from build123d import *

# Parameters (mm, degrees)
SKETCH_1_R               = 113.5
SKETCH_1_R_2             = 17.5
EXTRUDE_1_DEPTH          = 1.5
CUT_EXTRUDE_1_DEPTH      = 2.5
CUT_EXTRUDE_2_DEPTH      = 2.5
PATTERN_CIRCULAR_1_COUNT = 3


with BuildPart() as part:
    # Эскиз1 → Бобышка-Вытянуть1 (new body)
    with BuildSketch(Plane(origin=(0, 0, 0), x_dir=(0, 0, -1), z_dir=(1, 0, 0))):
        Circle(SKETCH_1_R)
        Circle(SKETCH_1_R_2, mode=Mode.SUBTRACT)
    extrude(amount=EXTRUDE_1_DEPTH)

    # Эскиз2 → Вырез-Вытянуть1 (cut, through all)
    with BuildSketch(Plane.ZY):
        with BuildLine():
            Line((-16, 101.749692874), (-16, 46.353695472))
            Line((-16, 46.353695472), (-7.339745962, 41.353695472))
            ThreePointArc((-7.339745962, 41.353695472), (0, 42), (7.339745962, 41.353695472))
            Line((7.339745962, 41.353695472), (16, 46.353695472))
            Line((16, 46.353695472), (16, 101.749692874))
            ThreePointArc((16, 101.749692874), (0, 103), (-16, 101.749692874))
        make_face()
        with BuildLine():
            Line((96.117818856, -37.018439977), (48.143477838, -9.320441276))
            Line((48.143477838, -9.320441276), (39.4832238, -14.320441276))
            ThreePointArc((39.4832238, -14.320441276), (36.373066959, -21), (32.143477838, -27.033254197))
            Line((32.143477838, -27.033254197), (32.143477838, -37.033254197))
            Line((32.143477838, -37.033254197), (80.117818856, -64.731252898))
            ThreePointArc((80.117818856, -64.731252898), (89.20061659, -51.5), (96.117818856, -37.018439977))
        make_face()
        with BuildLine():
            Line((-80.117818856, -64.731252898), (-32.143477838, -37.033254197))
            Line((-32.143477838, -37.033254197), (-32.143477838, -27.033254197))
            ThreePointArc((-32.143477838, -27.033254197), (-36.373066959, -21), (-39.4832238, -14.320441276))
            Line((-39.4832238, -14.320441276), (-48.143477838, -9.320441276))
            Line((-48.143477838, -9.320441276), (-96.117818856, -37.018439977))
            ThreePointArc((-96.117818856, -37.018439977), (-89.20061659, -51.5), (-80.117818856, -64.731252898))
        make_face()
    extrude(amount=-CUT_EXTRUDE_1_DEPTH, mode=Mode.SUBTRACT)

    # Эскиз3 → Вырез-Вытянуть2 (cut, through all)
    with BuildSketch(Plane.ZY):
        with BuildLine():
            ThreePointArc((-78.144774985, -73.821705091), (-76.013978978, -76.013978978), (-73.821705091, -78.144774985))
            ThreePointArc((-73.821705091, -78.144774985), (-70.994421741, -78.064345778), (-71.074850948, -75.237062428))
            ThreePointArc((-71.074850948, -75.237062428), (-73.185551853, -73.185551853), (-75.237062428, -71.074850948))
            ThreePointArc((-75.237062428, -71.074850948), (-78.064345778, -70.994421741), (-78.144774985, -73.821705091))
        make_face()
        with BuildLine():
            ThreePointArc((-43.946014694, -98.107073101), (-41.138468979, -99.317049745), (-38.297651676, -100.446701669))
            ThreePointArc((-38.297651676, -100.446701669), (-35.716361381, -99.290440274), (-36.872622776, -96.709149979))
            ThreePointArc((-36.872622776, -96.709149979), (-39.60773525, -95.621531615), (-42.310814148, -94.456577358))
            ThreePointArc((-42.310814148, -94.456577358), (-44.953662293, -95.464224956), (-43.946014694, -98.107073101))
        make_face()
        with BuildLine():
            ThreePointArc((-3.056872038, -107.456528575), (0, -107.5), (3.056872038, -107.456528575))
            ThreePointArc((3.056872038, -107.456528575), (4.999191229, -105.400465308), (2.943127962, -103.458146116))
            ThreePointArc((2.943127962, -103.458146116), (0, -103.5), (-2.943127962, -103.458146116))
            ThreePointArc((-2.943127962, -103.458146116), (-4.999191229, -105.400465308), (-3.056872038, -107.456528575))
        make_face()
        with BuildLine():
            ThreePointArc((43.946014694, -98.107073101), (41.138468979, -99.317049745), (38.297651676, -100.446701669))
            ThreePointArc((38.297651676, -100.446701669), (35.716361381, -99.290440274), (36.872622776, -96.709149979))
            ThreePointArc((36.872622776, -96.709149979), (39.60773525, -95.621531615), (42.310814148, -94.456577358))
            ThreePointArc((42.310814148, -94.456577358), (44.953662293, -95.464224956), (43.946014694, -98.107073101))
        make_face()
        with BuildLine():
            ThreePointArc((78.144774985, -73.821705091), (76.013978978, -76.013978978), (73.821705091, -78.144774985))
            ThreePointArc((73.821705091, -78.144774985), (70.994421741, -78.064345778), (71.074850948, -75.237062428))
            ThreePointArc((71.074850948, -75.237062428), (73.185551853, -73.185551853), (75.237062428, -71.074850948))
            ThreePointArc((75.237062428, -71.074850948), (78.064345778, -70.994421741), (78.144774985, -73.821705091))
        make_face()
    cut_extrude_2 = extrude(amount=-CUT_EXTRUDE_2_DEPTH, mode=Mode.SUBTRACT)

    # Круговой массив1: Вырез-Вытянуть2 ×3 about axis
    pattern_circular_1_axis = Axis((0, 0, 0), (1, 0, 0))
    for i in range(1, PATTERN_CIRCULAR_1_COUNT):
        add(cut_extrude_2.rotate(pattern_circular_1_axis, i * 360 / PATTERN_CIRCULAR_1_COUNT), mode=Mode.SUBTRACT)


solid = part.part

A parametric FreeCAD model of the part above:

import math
import FreeCAD as App
import Part
import Sketcher
Q = App.Units.Quantity

doc = App.newDocument("Part")
body = doc.addObject("PartDesign::Body", "Body")

# Sketch on YZ plane
sketch1 = body.newObject("Sketcher::SketchObject", "Sketch")
sketch1.AttachmentSupport = (doc.getObject("YZ_Plane"), [""])
sketch1.MapMode = "FlatFace"
sketch1.addGeometry([
    Part.Circle(App.Vector(0, 0, 0), App.Vector(0, 0, 1), 114),
    Part.Circle(App.Vector(0, 0, 0), App.Vector(0, 0, 1), 18),
], False)
sketch1.addConstraint([
    Sketcher.Constraint("Coincident", 0, 3, -1, 1),
    Sketcher.Constraint("Coincident", 1, 3, -1, 1),
    Sketcher.Constraint("Diameter", 0, 227.0),
    Sketcher.Constraint("Diameter", 1, 35.0),
])
pad1 = body.newObject("PartDesign::Pad", "Pad")
pad1.Profile = sketch1
pad1.Length = 1.5

# Sketch on YZ plane
sketch2 = body.newObject("Sketcher::SketchObject", "Sketch001")
sketch2.AttachmentSupport = (doc.getObject("YZ_Plane"), [""])
sketch2.MapMode = "FlatFace"
sketch2.addGeometry([
    Part.LineSegment(App.Vector(102, -16, 0), App.Vector(46, -16, 0)),  # 0
    Part.LineSegment(App.Vector(46, -16, 0), App.Vector(41, -7, 0)),  # 1
    Part.ArcOfCircle(Part.Circle(App.Vector(0, 0, 0), App.Vector(0, 0, 1), 42), math.radians(-10), math.radians(10)),  # 2
    Part.LineSegment(App.Vector(41, 7, 0), App.Vector(46, 16, 0)),  # 3
    Part.LineSegment(App.Vector(46, 16, 0), App.Vector(102, 16, 0)),  # 4
    Part.ArcOfCircle(Part.Circle(App.Vector(0, 0, 0), App.Vector(0, 0, 1), 103), math.radians(-8.94), math.radians(8.94)),  # 5
    Part.LineSegment(App.Vector(-37, 96, 0), App.Vector(-9, 48, 0)),  # 6
    Part.LineSegment(App.Vector(-9, 48, 0), App.Vector(-14, 39, 0)),  # 7
    Part.ArcOfCircle(Part.Circle(App.Vector(0, 0, 0), App.Vector(0, 0, 1), 42), math.radians(110), math.radians(130)),  # 8
    Part.LineSegment(App.Vector(-27, 32, 0), App.Vector(-37, 32, 0)),  # 9
    Part.LineSegment(App.Vector(-37, 32, 0), App.Vector(-65, 80, 0)),  # 10
    Part.ArcOfCircle(Part.Circle(App.Vector(0, 0, 0), App.Vector(0, 0, 1), 103), math.radians(111.06), math.radians(128.94)),  # 11
    Part.LineSegment(App.Vector(-65, -80, 0), App.Vector(-37, -32, 0)),  # 12
    Part.LineSegment(App.Vector(-37, -32, 0), App.Vector(-27, -32, 0)),  # 13
    Part.ArcOfCircle(Part.Circle(App.Vector(0, 0, 0), App.Vector(0, 0, 1), 42), math.radians(-130), math.radians(-110)),  # 14
    Part.LineSegment(App.Vector(-14, -39, 0), App.Vector(-9, -48, 0)),  # 15
    Part.LineSegment(App.Vector(-9, -48, 0), App.Vector(-37, -96, 0)),  # 16
    Part.ArcOfCircle(Part.Circle(App.Vector(0, 0, 0), App.Vector(0, 0, 1), 103), math.radians(-128.94), math.radians(-111.06)),  # 17
], False)
sketch2.addConstraint([
    Sketcher.Constraint("Coincident", 0, 2, 1, 1),
    Sketcher.Constraint("Coincident", 1, 2, 2, 1),
    Sketcher.Constraint("Coincident", 2, 2, 3, 1),
    Sketcher.Constraint("Coincident", 3, 2, 4, 1),
    Sketcher.Constraint("Coincident", 4, 2, 5, 2),
    Sketcher.Constraint("Coincident", 5, 1, 0, 1),
    Sketcher.Constraint("Coincident", 6, 2, 7, 1),
    Sketcher.Constraint("Coincident", 7, 2, 8, 1),
    Sketcher.Constraint("Coincident", 8, 2, 9, 1),
    Sketcher.Constraint("Coincident", 9, 2, 10, 1),
    Sketcher.Constraint("Coincident", 10, 2, 11, 2),
    Sketcher.Constraint("Coincident", 11, 1, 6, 1),
    Sketcher.Constraint("Coincident", 12, 2, 13, 1),
    Sketcher.Constraint("Coincident", 13, 2, 14, 1),
    Sketcher.Constraint("Coincident", 14, 2, 15, 1),
    Sketcher.Constraint("Coincident", 15, 2, 16, 1),
    Sketcher.Constraint("Coincident", 16, 2, 17, 2),
    Sketcher.Constraint("Coincident", 17, 1, 12, 1),
    Sketcher.Constraint("Horizontal", 0),
    Sketcher.Constraint("Horizontal", 4),
    Sketcher.Constraint("Horizontal", 9),
    Sketcher.Constraint("Horizontal", 13),
    Sketcher.Constraint("Coincident", 2, 3, -1, 1),
    Sketcher.Constraint("Coincident", 5, 3, -1, 1),
    Sketcher.Constraint("Coincident", 8, 3, -1, 1),
    Sketcher.Constraint("Coincident", 11, 3, -1, 1),
    Sketcher.Constraint("Coincident", 14, 3, -1, 1),
    Sketcher.Constraint("Coincident", 17, 3, -1, 1),
    Sketcher.Constraint("Equal", 2, 8),
    Sketcher.Constraint("Equal", 5, 11),
    Sketcher.Constraint("Equal", 8, 14),
    Sketcher.Constraint("Equal", 11, 17),
    Sketcher.Constraint("Symmetric", 0, 2, 3, 2, -1),
    Sketcher.Constraint("Symmetric", 9, 2, 12, 2, -1),
    Sketcher.Constraint("Symmetric", 6, 2, 15, 2, -1),
    Sketcher.Constraint("Parallel", 1, 6),
    Sketcher.Constraint("Parallel", 3, 7),
    Sketcher.Constraint("Parallel", 6, 10),
    Sketcher.Constraint("Parallel", 7, 12),
    Sketcher.Constraint("Parallel", 10, 15),
    Sketcher.Constraint("Parallel", 12, 16),
    Sketcher.Constraint("Vertical", 1, 2, 2, 2),
    Sketcher.Constraint("Equal", 3, 7),
    Sketcher.Constraint("Equal", 6, 10),
    Sketcher.Constraint("Radius", 2, 42.0),
    Sketcher.Constraint("Radius", 5, 103.0),
    Sketcher.Constraint("DistanceX", 9, 2, 9, 1, 10.0),
    Sketcher.Constraint("Angle", 1, Q("120 deg")),
    Sketcher.Constraint("Distance", 1, 10.0),
    Sketcher.Constraint("DistanceY", 0, 2, -1, 1, 16.0),
    Sketcher.Constraint("DistanceY", 8, 2, 6, 2, 16.0),
])
pocket1 = body.newObject("PartDesign::Pocket", "Pocket")
pocket1.Profile = sketch2
pocket1.Type = "ThroughAll"
pocket1.Reversed = True

# Sketch on YZ plane
sketch3 = body.newObject("Sketcher::SketchObject", "Sketch002")
sketch3.AttachmentSupport = (doc.getObject("YZ_Plane"), [""])
sketch3.MapMode = "FlatFace"
sketch3.addGeometry([
    Part.ArcOfCircle(Part.Circle(App.Vector(0, 0, 0), App.Vector(0, 0, 1), 107.5), math.radians(-136.63), math.radians(-133.37)),  # 0
    Part.ArcOfCircle(Part.Circle(App.Vector(-76.7, -72.4, 0), App.Vector(0, 0, 1), 2), math.radians(43), math.radians(223)),  # 1
    Part.ArcOfCircle(Part.Circle(App.Vector(0, 0, 0), App.Vector(0, 0, 1), 103.5), math.radians(-136.63), math.radians(-133.37)),  # 2
    Part.ArcOfCircle(Part.Circle(App.Vector(-72.4, -76.7, 0), App.Vector(0, 0, 1), 2), math.radians(-133), math.radians(47)),  # 3
    Part.ArcOfCircle(Part.Circle(App.Vector(0, 0, 0), App.Vector(0, 0, 1), 107.5), math.radians(-159.13), math.radians(-155.87)),  # 4
    Part.ArcOfCircle(Part.Circle(App.Vector(-98.6, -37.6, 0), App.Vector(0, 0, 1), 2), math.radians(21), math.radians(201)),  # 5
    Part.ArcOfCircle(Part.Circle(App.Vector(0, 0, 0), App.Vector(0, 0, 1), 103.5), math.radians(-159.13), math.radians(-155.87)),  # 6
    Part.ArcOfCircle(Part.Circle(App.Vector(-96.3, -43.1, 0), App.Vector(0, 0, 1), 2), math.radians(-156), math.radians(24)),  # 7
    Part.ArcOfCircle(Part.Circle(App.Vector(0, 0, 0), App.Vector(0, 0, 1), 107.5), math.radians(178.37), math.radians(181.63)),  # 8
    Part.ArcOfCircle(Part.Circle(App.Vector(-105.5, 3, 0), App.Vector(0, 0, 1), 2), math.radians(-2), math.radians(178)),  # 9
    Part.ArcOfCircle(Part.Circle(App.Vector(0, 0, 0), App.Vector(0, 0, 1), 103.5), math.radians(178.37), math.radians(181.63)),  # 10
    Part.ArcOfCircle(Part.Circle(App.Vector(-105.5, -3, 0), App.Vector(0, 0, 1), 2), math.radians(-178), math.radians(2)),  # 11
    Part.ArcOfCircle(Part.Circle(App.Vector(0, 0, 0), App.Vector(0, 0, 1), 107.5), math.radians(155.87), math.radians(159.13)),  # 12
    Part.ArcOfCircle(Part.Circle(App.Vector(-96.3, 43.1, 0), App.Vector(0, 0, 1), 2), math.radians(-24), math.radians(156)),  # 13
    Part.ArcOfCircle(Part.Circle(App.Vector(0, 0, 0), App.Vector(0, 0, 1), 103.5), math.radians(155.87), math.radians(159.13)),  # 14
    Part.ArcOfCircle(Part.Circle(App.Vector(-98.6, 37.6, 0), App.Vector(0, 0, 1), 2), math.radians(159), math.radians(339)),  # 15
    Part.ArcOfCircle(Part.Circle(App.Vector(0, 0, 0), App.Vector(0, 0, 1), 107.5), math.radians(133.37), math.radians(136.63)),  # 16
    Part.ArcOfCircle(Part.Circle(App.Vector(-72.4, 76.7, 0), App.Vector(0, 0, 1), 2), math.radians(-47), math.radians(133)),  # 17
    Part.ArcOfCircle(Part.Circle(App.Vector(0, 0, 0), App.Vector(0, 0, 1), 103.5), math.radians(133.37), math.radians(136.63)),  # 18
    Part.ArcOfCircle(Part.Circle(App.Vector(-76.7, 72.4, 0), App.Vector(0, 0, 1), 2), math.radians(137), math.radians(317)),  # 19
], False)
sketch3.addConstraint([
    Sketcher.Constraint("Tangent", 0, 1, 1, 2),
    Sketcher.Constraint("Tangent", 1, 1, 2, 1),
    Sketcher.Constraint("Tangent", 2, 2, 3, 2),
    Sketcher.Constraint("Tangent", 3, 1, 0, 2),
    Sketcher.Constraint("Tangent", 4, 1, 5, 2),
    Sketcher.Constraint("Tangent", 5, 1, 6, 1),
    Sketcher.Constraint("Tangent", 6, 2, 7, 2),
    Sketcher.Constraint("Tangent", 7, 1, 4, 2),
    Sketcher.Constraint("Tangent", 8, 1, 9, 2),
    Sketcher.Constraint("Tangent", 9, 1, 10, 1),
    Sketcher.Constraint("Tangent", 10, 2, 11, 2),
    Sketcher.Constraint("Tangent", 11, 1, 8, 2),
    Sketcher.Constraint("Tangent", 12, 1, 13, 2),
    Sketcher.Constraint("Tangent", 13, 1, 14, 1),
    Sketcher.Constraint("Tangent", 14, 2, 15, 2),
    Sketcher.Constraint("Tangent", 15, 1, 12, 2),
    Sketcher.Constraint("Tangent", 16, 1, 17, 2),
    Sketcher.Constraint("Tangent", 17, 1, 18, 1),
    Sketcher.Constraint("Tangent", 18, 2, 19, 2),
    Sketcher.Constraint("Tangent", 19, 1, 16, 2),
    Sketcher.Constraint("Coincident", 0, 3, -1, 1),
    Sketcher.Constraint("Coincident", 2, 3, -1, 1),
    Sketcher.Constraint("Coincident", 4, 3, -1, 1),
    Sketcher.Constraint("Coincident", 6, 3, -1, 1),
    Sketcher.Constraint("Coincident", 8, 3, -1, 1),
    Sketcher.Constraint("Coincident", 10, 3, -1, 1),
    Sketcher.Constraint("Coincident", 12, 3, -1, 1),
    Sketcher.Constraint("Coincident", 14, 3, -1, 1),
    Sketcher.Constraint("Coincident", 16, 3, -1, 1),
    Sketcher.Constraint("Coincident", 18, 3, -1, 1),
    Sketcher.Constraint("Equal", 0, 4),
    Sketcher.Constraint("Equal", 3, 5),
    Sketcher.Constraint("Equal", 4, 8),
    Sketcher.Constraint("Equal", 7, 9),
    Sketcher.Constraint("Equal", 8, 12),
    Sketcher.Constraint("Equal", 11, 13),
    Sketcher.Constraint("Equal", 12, 16),
    Sketcher.Constraint("Equal", 15, 17),
    Sketcher.Constraint("Vertical", 9, 3, 11, 3),
    Sketcher.Constraint("Vertical", 7, 3, 13, 3),
    Sketcher.Constraint("Vertical", 5, 3, 15, 3),
    Sketcher.Constraint("Vertical", 3, 3, 17, 3),
    Sketcher.Constraint("Vertical", 1, 3, 19, 3),
    Sketcher.Constraint("Radius", 1, 2.0),
    Sketcher.Constraint("Radius", 0, 107.499998),
    Sketcher.Constraint("DistanceY", -1, 1, 9, 3, 3.0),
    Sketcher.Constraint("DistanceX", 4, 1, -1, 1, 100.446702),
    Sketcher.Constraint("DistanceX", 5, 3, 7, 3, 2.296101),
    Sketcher.Constraint("DistanceY", 1, 1, 4, 1, 32.777199),
    Sketcher.Constraint("DistanceX", 3, 3, -1, 1, 72.448278),
])
pocket2 = body.newObject("PartDesign::Pocket", "Pocket001")
pocket2.Profile = sketch3
pocket2.Type = "ThroughAll"
pocket2.Reversed = True
doc.recompute()

polarpattern = body.newObject("PartDesign::PolarPattern", "PolarPattern")
polarpattern.Originals = [pocket2]
polarpattern.Axis = (doc.getObject("X_Axis"), [""])
polarpattern.Angle = 360
polarpattern.Occurrences = 3
body.Tip = polarpattern

doc.recompute()
